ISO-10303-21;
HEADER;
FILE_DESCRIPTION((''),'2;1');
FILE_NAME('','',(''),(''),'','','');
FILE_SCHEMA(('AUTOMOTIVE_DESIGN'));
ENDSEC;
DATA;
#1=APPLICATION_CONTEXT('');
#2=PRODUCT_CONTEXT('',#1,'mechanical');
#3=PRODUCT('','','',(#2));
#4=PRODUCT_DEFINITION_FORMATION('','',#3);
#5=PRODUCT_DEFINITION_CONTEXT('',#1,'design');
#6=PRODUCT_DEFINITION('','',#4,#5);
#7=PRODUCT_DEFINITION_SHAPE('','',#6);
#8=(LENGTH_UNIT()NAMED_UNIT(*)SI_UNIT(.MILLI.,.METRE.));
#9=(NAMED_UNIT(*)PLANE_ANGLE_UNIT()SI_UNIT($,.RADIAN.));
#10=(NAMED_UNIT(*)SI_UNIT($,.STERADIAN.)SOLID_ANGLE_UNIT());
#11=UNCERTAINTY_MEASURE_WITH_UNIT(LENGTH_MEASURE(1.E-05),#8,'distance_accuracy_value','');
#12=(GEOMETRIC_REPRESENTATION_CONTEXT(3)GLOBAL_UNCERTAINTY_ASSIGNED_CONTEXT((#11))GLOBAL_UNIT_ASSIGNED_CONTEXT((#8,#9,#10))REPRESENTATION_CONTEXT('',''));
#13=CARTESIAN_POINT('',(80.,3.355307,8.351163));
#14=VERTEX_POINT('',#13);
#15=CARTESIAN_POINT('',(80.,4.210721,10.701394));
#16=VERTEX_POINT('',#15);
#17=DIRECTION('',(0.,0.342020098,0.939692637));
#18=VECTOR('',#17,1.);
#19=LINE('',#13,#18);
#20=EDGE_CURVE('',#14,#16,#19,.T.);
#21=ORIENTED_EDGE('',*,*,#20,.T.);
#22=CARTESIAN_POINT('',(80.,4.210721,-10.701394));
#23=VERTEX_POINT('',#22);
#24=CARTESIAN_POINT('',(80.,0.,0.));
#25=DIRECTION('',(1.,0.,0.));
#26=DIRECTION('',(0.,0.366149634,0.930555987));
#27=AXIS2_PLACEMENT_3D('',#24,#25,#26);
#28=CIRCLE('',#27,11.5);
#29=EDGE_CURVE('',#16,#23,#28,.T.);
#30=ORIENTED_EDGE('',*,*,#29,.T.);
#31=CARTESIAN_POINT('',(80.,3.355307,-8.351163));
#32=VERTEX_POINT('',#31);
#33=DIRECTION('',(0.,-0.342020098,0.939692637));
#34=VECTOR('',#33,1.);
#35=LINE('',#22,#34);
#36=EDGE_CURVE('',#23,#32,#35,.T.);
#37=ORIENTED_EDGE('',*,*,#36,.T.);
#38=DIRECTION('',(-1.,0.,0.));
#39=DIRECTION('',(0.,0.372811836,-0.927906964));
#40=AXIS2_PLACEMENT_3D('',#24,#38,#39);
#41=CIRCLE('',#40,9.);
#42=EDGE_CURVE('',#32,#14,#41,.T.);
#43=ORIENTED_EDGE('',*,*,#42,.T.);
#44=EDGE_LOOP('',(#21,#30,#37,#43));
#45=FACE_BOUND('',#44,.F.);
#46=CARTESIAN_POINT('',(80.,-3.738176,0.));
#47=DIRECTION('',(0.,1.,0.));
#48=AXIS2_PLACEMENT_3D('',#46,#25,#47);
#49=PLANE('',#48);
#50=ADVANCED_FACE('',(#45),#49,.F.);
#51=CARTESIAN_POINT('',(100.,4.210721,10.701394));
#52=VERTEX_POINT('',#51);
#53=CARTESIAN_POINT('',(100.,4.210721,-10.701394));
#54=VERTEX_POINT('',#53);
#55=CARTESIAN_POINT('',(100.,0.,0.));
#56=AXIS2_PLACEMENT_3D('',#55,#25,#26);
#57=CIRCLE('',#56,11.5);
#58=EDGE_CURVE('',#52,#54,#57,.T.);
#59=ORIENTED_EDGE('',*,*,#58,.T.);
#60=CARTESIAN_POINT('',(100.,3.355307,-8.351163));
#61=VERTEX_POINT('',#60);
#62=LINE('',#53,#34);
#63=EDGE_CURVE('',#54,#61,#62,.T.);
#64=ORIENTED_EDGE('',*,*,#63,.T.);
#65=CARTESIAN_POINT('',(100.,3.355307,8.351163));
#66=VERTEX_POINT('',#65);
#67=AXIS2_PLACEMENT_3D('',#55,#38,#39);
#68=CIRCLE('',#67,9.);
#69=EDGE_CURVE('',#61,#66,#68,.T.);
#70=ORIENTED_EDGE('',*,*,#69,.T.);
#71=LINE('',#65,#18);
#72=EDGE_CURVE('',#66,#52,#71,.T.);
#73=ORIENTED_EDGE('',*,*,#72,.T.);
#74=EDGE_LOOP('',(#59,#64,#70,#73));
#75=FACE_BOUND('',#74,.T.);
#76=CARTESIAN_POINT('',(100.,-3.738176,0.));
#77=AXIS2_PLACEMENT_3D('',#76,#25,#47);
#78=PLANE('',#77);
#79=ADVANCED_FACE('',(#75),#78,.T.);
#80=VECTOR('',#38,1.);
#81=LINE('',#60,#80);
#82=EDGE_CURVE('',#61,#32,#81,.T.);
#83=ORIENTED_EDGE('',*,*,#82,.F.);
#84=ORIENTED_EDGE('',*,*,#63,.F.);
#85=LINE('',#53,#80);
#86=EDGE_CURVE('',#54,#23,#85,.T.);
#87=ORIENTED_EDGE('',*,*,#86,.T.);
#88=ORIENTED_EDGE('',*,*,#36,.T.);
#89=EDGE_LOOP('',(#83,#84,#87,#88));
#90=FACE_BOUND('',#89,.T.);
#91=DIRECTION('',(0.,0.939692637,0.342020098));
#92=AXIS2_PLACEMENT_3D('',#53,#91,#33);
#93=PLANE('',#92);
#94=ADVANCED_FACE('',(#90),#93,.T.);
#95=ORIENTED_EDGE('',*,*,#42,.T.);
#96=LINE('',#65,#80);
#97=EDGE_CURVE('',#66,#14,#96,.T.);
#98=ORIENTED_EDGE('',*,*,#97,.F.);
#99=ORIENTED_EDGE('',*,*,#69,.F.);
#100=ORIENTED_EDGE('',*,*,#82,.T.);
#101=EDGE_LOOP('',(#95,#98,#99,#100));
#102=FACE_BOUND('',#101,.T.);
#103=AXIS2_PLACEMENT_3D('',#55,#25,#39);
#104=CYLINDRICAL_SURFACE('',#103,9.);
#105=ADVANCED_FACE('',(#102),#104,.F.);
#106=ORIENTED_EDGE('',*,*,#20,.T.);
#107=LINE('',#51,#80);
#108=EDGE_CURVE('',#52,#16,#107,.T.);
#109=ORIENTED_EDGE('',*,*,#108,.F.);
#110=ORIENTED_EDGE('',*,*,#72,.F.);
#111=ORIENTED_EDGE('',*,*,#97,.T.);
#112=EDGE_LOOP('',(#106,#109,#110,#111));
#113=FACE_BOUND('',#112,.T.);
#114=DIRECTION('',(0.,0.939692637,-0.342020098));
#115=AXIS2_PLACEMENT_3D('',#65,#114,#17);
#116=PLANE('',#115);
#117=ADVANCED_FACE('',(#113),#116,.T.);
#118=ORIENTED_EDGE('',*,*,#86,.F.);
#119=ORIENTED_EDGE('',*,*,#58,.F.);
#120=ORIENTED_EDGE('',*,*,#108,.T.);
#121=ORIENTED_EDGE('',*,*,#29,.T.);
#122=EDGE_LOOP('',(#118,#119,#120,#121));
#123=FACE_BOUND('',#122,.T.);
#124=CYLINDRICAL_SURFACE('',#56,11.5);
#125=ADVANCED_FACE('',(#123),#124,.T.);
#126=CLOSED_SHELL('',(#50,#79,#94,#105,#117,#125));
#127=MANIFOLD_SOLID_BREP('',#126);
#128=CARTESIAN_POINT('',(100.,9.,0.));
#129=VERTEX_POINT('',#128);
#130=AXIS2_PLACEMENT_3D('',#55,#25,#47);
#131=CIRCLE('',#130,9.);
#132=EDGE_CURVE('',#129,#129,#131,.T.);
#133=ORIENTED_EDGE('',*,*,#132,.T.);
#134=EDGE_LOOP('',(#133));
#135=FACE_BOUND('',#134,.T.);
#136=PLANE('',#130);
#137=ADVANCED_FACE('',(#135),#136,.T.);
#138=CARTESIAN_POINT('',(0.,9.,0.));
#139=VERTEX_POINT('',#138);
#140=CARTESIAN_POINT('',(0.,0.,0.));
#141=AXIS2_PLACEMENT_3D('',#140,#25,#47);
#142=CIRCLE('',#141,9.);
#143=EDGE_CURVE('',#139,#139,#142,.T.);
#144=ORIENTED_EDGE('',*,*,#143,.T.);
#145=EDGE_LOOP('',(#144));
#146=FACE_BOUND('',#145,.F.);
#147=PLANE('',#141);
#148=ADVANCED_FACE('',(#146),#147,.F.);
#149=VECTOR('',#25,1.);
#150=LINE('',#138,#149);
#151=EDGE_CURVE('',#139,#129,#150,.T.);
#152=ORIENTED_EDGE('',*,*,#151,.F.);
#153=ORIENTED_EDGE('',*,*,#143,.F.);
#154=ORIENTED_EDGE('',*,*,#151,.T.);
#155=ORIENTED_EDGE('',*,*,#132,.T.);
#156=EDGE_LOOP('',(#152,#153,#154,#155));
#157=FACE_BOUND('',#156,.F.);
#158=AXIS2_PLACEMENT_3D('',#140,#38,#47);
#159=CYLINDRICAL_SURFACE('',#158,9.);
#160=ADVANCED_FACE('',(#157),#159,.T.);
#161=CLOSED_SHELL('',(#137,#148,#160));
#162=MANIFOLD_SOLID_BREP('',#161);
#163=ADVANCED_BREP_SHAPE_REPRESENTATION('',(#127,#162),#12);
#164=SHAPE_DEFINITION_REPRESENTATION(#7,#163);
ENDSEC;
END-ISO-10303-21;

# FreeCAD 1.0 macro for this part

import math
import FreeCAD as App
import Part
import Sketcher
Q = App.Units.Quantity

doc = App.newDocument("Part")
body = doc.addObject("PartDesign::Body", "Body")

# Sketch on YZ plane
sketch1 = body.newObject("Sketcher::SketchObject", "Sketch")
sketch1.AttachmentSupport = (doc.getObject("YZ_Plane"), [""])
sketch1.MapMode = "FlatFace"
sketch1.addGeometry(Part.Circle(App.Vector(0, 0, 0), App.Vector(0, 0, 1), 9), False)
sketch1.addConstraint(Sketcher.Constraint("Coincident", 0, 3, -1, 1))
sketch1.addConstraint(Sketcher.Constraint("Diameter", 0, Q("18 mm")))
pad1 = body.newObject("PartDesign::Pad", "Pad")
pad1.Profile = sketch1
pad1.Length = 100
body2 = doc.addObject("PartDesign::Body", "Body001")

# Sketch on YZ plane
sketch2 = body2.newObject("Sketcher::SketchObject", "Sketch001")
sketch2.AttachmentSupport = (doc.getObject("YZ_Plane001"), [""])
sketch2.MapMode = "FlatFace"
sketch2.AttachmentOffset = App.Placement(App.Vector(0, 0, 100), App.Rotation())
sketch2.addGeometry(Part.ArcOfCircle(Part.Circle(App.Vector(0, 0, 0), App.Vector(0, 0, 1), 9), math.radians(68), math.radians(292)), False)
sketch2.addGeometry(Part.LineSegment(App.Vector(3.4, 8.4, 0), App.Vector(4.2, 10.7, 0)), False)
sketch2.addGeometry(Part.ArcOfCircle(Part.Circle(App.Vector(0, 0, 0), App.Vector(0, 0, 1), 11.5), math.radians(69), math.radians(291)), False)
sketch2.addGeometry(Part.LineSegment(App.Vector(4.2, -10.7, 0), App.Vector(3.4, -8.4, 0)), False)
sketch2.addConstraint(Sketcher.Constraint("Coincident", 0, 1, 1, 1))
sketch2.addConstraint(Sketcher.Constraint("Coincident", 1, 2, 2, 1))
sketch2.addConstraint(Sketcher.Constraint("Coincident", 2, 2, 3, 1))
sketch2.addConstraint(Sketcher.Constraint("Coincident", 3, 2, 0, 2))
sketch2.addConstraint(Sketcher.Constraint("Coincident", 0, 3, -1, 1))
sketch2.addConstraint(Sketcher.Constraint("Coincident", 2, 3, -1, 1))
sketch2.addConstraint(Sketcher.Constraint("Vertical", 1, 2, 2, 2))
sketch2.addConstraint(Sketcher.Constraint("Vertical", 0, 1, 3, 2))
sketch2.addConstraint(Sketcher.Constraint("Radius", 0, Q("9 mm")))
sketch2.addConstraint(Sketcher.Constraint("Radius", 2, Q("11.5 mm")))
sketch2.addConstraint(Sketcher.Constraint("Angle", 1, Q("70.000003 deg")))
sketch2.addConstraint(Sketcher.Constraint("DistanceX", -1, 1, 1, 2, Q("4.210721 mm")))
pad2 = body2.newObject("PartDesign::Pad", "Pad001")
pad2.Profile = sketch2
pad2.Length = 20
pad2.Reversed = True

doc.recompute()
